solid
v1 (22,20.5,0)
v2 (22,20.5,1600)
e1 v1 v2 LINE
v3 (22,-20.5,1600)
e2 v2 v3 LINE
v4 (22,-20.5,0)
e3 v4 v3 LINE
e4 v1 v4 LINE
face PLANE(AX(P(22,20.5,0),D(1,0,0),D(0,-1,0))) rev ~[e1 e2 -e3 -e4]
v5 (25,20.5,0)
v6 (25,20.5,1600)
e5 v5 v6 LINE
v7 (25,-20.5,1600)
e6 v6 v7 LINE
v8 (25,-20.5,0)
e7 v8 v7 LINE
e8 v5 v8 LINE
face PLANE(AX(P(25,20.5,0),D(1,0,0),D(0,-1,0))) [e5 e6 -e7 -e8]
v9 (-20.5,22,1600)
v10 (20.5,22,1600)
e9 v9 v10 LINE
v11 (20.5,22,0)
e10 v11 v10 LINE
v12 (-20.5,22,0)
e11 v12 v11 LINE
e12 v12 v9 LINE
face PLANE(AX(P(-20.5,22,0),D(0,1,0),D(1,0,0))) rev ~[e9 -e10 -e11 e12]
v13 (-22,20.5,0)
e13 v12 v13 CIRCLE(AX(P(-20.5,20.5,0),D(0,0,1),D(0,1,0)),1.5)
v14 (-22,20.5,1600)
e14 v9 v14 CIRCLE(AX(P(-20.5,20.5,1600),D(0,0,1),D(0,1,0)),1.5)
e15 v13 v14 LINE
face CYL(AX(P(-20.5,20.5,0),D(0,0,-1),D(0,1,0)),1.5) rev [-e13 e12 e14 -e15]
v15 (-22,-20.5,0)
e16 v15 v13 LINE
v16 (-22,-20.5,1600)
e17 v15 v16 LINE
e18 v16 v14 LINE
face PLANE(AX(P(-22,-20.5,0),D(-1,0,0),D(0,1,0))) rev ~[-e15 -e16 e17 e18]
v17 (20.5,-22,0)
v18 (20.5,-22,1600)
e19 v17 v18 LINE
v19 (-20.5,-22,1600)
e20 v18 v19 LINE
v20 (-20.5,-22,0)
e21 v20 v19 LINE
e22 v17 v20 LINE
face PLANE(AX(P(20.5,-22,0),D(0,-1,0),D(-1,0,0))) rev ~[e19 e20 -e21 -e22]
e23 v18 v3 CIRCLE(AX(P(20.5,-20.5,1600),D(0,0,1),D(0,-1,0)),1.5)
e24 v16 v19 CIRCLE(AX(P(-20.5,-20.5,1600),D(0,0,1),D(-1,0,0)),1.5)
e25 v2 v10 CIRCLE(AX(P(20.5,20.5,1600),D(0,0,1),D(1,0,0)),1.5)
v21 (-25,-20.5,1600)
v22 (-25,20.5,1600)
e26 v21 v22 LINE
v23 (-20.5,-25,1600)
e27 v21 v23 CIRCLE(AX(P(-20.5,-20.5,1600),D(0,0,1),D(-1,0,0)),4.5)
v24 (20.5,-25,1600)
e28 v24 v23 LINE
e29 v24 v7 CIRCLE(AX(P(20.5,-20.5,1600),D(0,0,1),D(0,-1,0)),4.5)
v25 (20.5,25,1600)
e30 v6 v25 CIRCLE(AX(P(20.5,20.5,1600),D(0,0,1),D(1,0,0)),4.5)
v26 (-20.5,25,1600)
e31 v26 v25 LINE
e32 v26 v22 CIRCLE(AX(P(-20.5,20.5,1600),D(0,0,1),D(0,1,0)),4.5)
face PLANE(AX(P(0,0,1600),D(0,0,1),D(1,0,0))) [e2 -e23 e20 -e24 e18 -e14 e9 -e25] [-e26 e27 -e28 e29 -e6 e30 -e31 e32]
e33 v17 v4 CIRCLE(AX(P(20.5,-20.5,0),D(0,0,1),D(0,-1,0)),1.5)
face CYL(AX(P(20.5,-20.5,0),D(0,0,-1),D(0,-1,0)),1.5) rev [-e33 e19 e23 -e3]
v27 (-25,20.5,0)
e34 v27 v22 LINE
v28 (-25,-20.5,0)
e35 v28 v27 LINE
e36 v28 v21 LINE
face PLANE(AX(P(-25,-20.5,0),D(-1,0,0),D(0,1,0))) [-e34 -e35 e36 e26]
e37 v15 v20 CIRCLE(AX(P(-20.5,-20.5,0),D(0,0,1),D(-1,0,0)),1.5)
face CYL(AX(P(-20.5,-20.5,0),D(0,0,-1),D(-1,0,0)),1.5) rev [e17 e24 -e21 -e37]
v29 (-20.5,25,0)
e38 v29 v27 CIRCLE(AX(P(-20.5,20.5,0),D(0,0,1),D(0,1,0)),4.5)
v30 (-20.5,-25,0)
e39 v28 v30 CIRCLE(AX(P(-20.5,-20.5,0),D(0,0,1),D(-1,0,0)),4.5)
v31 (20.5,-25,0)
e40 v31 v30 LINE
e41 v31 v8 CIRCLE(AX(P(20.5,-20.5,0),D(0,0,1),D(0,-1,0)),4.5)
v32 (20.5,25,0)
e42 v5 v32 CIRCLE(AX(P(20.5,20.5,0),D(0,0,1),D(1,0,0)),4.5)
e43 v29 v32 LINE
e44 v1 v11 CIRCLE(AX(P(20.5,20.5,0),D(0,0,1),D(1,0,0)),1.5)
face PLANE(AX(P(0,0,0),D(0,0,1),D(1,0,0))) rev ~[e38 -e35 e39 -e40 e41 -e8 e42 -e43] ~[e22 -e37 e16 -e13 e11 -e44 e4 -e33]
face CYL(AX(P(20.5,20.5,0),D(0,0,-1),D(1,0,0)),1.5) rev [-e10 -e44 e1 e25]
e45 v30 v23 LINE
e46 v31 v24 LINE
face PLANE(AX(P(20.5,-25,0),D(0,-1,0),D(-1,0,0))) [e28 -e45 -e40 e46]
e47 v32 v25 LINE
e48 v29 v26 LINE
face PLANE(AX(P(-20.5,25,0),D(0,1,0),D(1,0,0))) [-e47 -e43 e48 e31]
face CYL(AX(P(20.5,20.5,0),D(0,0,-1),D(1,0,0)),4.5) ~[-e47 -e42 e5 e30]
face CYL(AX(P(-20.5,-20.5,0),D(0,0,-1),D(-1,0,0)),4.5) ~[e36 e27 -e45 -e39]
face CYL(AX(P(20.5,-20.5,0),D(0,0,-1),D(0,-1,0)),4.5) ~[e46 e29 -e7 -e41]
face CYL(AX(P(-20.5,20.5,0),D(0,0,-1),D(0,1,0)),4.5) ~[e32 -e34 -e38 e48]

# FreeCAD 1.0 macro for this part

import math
import FreeCAD as App
import Part
import Sketcher

doc = App.newDocument("Part")
body = doc.addObject("PartDesign::Body", "Body")

# Sketch on XY plane
sketch1 = doc.addObject("Sketcher::SketchObject", "Sketch")
body.addObject(sketch1)
sketch1.AttachmentSupport = (doc.XY_Plane, [""])
sketch1.MapMode = "FlatFace"
sketch1.addGeometry(Part.LineSegment(App.Vector(-25, 20.5, 0), App.Vector(-25, -20.5, 0)), False)
sketch1.addGeometry(Part.ArcOfCircle(Part.Circle(App.Vector(-20.5, -20.5, 0), App.Vector(0, 0, 1), 4.5), math.radians(180), math.radians(270)), False)
sketch1.addGeometry(Part.LineSegment(App.Vector(-20.5, -25, 0), App.Vector(20.5, -25, 0)), False)
sketch1.addGeometry(Part.ArcOfCircle(Part.Circle(App.Vector(20.5, -20.5, 0), App.Vector(0, 0, 1), 4.5), math.radians(-90), math.radians(0)), False)
sketch1.addGeometry(Part.LineSegment(App.Vector(25, -20.5, 0), App.Vector(25, 20.5, 0)), False)
sketch1.addGeometry(Part.ArcOfCircle(Part.Circle(App.Vector(20.5, 20.5, 0), App.Vector(0, 0, 1), 4.5), math.radians(0), math.radians(90)), False)
sketch1.addGeometry(Part.LineSegment(App.Vector(20.5, 25, 0), App.Vector(-20.5, 25, 0)), False)
sketch1.addGeometry(Part.ArcOfCircle(Part.Circle(App.Vector(-20.5, 20.5, 0), App.Vector(0, 0, 1), 4.5), math.radians(90), math.radians(180)), False)
sketch1.addGeometry(Part.ArcOfCircle(Part.Circle(App.Vector(-20.5, 20.5, 0), App.Vector(0, 0, 1), 1.5), math.radians(90), math.radians(180)), False)
sketch1.addGeometry(Part.LineSegment(App.Vector(-20.5, 22, 0), App.Vector(20.5, 22, 0)), False)
sketch1.addGeometry(Part.ArcOfCircle(Part.Circle(App.Vector(20.5, 20.5, 0), App.Vector(0, 0, 1), 1.5), math.radians(0), math.radians(90)), False)
sketch1.addGeometry(Part.LineSegment(App.Vector(22, 20.5, 0), App.Vector(22, -20.5, 0)), False)
sketch1.addGeometry(Part.ArcOfCircle(Part.Circle(App.Vector(20.5, -20.5, 0), App.Vector(0, 0, 1), 1.5), math.radians(-90), math.radians(0)), False)
sketch1.addGeometry(Part.LineSegment(App.Vector(20.5, -22, 0), App.Vector(-20.5, -22, 0)), False)
sketch1.addGeometry(Part.ArcOfCircle(Part.Circle(App.Vector(-20.5, -20.5, 0), App.Vector(0, 0, 1), 1.5), math.radians(180), math.radians(270)), False)
sketch1.addGeometry(Part.LineSegment(App.Vector(-22, -20.5, 0), App.Vector(-22, 20.5, 0)), False)
sketch1.addConstraint(Sketcher.Constraint("Tangent", 0, 2, 1, 1))
sketch1.addConstraint(Sketcher.Constraint("Tangent", 1, 2, 2, 1))
sketch1.addConstraint(Sketcher.Constraint("Tangent", 2, 2, 3, 1))
sketch1.addConstraint(Sketcher.Constraint("Tangent", 3, 2, 4, 1))
sketch1.addConstraint(Sketcher.Constraint("Tangent", 4, 2, 5, 1))
sketch1.addConstraint(Sketcher.Constraint("Tangent", 5, 2, 6, 1))
sketch1.addConstraint(Sketcher.Constraint("Tangent", 6, 2, 7, 1))
sketch1.addConstraint(Sketcher.Constraint("Tangent", 7, 2, 0, 1))
sketch1.addConstraint(Sketcher.Constraint("Tangent", 8, 1, 9, 1))
sketch1.addConstraint(Sketcher.Constraint("Tangent", 9, 2, 10, 2))
sketch1.addConstraint(Sketcher.Constraint("Tangent", 10, 1, 11, 1))
sketch1.addConstraint(Sketcher.Constraint("Tangent", 11, 2, 12, 2))
sketch1.addConstraint(Sketcher.Constraint("Tangent", 12, 1, 13, 1))
sketch1.addConstraint(Sketcher.Constraint("Tangent", 13, 2, 14, 2))
sketch1.addConstraint(Sketcher.Constraint("Tangent", 14, 1, 15, 1))
sketch1.addConstraint(Sketcher.Constraint("Tangent", 15, 2, 8, 2))
sketch1.addConstraint(Sketcher.Constraint("Vertical", 0))
sketch1.addConstraint(Sketcher.Constraint("Horizontal", 2))
sketch1.addConstraint(Sketcher.Constraint("Vertical", 4))
sketch1.addConstraint(Sketcher.Constraint("Horizontal", 6))
sketch1.addConstraint(Sketcher.Constraint("Horizontal", 9))
sketch1.addConstraint(Sketcher.Constraint("Vertical", 11))
sketch1.addConstraint(Sketcher.Constraint("Horizontal", 13))
sketch1.addConstraint(Sketcher.Constraint("Vertical", 15))
sketch1.addConstraint(Sketcher.Constraint("Coincident", 8, 3, 7, 3))
sketch1.addConstraint(Sketcher.Constraint("Coincident", 10, 3, 5, 3))
sketch1.addConstraint(Sketcher.Constraint("Coincident", 12, 3, 3, 3))
sketch1.addConstraint(Sketcher.Constraint("Equal", 1, 3))
sketch1.addConstraint(Sketcher.Constraint("Equal", 3, 5))
sketch1.addConstraint(Sketcher.Constraint("Equal", 5, 7))
sketch1.addConstraint(Sketcher.Constraint("Equal", 12, 14))
sketch1.addConstraint(Sketcher.Constraint("Symmetric", 1, 3, 5, 3, -1, 1))
sketch1.addConstraint(Sketcher.Constraint("Equal", 13, 0))
sketch1.addConstraint(Sketcher.Constraint("Radius", 1, 4.5))
sketch1.addConstraint(Sketcher.Constraint("Radius", 8, 1.5))
sketch1.addConstraint(Sketcher.Constraint("DistanceX", 0, 2, -1, 1, 25.0))
pad1 = doc.addObject("PartDesign::Pad", "Pad")
body.addObject(pad1)
pad1.Profile = sketch1
pad1.Length = 1600

doc.recompute()
